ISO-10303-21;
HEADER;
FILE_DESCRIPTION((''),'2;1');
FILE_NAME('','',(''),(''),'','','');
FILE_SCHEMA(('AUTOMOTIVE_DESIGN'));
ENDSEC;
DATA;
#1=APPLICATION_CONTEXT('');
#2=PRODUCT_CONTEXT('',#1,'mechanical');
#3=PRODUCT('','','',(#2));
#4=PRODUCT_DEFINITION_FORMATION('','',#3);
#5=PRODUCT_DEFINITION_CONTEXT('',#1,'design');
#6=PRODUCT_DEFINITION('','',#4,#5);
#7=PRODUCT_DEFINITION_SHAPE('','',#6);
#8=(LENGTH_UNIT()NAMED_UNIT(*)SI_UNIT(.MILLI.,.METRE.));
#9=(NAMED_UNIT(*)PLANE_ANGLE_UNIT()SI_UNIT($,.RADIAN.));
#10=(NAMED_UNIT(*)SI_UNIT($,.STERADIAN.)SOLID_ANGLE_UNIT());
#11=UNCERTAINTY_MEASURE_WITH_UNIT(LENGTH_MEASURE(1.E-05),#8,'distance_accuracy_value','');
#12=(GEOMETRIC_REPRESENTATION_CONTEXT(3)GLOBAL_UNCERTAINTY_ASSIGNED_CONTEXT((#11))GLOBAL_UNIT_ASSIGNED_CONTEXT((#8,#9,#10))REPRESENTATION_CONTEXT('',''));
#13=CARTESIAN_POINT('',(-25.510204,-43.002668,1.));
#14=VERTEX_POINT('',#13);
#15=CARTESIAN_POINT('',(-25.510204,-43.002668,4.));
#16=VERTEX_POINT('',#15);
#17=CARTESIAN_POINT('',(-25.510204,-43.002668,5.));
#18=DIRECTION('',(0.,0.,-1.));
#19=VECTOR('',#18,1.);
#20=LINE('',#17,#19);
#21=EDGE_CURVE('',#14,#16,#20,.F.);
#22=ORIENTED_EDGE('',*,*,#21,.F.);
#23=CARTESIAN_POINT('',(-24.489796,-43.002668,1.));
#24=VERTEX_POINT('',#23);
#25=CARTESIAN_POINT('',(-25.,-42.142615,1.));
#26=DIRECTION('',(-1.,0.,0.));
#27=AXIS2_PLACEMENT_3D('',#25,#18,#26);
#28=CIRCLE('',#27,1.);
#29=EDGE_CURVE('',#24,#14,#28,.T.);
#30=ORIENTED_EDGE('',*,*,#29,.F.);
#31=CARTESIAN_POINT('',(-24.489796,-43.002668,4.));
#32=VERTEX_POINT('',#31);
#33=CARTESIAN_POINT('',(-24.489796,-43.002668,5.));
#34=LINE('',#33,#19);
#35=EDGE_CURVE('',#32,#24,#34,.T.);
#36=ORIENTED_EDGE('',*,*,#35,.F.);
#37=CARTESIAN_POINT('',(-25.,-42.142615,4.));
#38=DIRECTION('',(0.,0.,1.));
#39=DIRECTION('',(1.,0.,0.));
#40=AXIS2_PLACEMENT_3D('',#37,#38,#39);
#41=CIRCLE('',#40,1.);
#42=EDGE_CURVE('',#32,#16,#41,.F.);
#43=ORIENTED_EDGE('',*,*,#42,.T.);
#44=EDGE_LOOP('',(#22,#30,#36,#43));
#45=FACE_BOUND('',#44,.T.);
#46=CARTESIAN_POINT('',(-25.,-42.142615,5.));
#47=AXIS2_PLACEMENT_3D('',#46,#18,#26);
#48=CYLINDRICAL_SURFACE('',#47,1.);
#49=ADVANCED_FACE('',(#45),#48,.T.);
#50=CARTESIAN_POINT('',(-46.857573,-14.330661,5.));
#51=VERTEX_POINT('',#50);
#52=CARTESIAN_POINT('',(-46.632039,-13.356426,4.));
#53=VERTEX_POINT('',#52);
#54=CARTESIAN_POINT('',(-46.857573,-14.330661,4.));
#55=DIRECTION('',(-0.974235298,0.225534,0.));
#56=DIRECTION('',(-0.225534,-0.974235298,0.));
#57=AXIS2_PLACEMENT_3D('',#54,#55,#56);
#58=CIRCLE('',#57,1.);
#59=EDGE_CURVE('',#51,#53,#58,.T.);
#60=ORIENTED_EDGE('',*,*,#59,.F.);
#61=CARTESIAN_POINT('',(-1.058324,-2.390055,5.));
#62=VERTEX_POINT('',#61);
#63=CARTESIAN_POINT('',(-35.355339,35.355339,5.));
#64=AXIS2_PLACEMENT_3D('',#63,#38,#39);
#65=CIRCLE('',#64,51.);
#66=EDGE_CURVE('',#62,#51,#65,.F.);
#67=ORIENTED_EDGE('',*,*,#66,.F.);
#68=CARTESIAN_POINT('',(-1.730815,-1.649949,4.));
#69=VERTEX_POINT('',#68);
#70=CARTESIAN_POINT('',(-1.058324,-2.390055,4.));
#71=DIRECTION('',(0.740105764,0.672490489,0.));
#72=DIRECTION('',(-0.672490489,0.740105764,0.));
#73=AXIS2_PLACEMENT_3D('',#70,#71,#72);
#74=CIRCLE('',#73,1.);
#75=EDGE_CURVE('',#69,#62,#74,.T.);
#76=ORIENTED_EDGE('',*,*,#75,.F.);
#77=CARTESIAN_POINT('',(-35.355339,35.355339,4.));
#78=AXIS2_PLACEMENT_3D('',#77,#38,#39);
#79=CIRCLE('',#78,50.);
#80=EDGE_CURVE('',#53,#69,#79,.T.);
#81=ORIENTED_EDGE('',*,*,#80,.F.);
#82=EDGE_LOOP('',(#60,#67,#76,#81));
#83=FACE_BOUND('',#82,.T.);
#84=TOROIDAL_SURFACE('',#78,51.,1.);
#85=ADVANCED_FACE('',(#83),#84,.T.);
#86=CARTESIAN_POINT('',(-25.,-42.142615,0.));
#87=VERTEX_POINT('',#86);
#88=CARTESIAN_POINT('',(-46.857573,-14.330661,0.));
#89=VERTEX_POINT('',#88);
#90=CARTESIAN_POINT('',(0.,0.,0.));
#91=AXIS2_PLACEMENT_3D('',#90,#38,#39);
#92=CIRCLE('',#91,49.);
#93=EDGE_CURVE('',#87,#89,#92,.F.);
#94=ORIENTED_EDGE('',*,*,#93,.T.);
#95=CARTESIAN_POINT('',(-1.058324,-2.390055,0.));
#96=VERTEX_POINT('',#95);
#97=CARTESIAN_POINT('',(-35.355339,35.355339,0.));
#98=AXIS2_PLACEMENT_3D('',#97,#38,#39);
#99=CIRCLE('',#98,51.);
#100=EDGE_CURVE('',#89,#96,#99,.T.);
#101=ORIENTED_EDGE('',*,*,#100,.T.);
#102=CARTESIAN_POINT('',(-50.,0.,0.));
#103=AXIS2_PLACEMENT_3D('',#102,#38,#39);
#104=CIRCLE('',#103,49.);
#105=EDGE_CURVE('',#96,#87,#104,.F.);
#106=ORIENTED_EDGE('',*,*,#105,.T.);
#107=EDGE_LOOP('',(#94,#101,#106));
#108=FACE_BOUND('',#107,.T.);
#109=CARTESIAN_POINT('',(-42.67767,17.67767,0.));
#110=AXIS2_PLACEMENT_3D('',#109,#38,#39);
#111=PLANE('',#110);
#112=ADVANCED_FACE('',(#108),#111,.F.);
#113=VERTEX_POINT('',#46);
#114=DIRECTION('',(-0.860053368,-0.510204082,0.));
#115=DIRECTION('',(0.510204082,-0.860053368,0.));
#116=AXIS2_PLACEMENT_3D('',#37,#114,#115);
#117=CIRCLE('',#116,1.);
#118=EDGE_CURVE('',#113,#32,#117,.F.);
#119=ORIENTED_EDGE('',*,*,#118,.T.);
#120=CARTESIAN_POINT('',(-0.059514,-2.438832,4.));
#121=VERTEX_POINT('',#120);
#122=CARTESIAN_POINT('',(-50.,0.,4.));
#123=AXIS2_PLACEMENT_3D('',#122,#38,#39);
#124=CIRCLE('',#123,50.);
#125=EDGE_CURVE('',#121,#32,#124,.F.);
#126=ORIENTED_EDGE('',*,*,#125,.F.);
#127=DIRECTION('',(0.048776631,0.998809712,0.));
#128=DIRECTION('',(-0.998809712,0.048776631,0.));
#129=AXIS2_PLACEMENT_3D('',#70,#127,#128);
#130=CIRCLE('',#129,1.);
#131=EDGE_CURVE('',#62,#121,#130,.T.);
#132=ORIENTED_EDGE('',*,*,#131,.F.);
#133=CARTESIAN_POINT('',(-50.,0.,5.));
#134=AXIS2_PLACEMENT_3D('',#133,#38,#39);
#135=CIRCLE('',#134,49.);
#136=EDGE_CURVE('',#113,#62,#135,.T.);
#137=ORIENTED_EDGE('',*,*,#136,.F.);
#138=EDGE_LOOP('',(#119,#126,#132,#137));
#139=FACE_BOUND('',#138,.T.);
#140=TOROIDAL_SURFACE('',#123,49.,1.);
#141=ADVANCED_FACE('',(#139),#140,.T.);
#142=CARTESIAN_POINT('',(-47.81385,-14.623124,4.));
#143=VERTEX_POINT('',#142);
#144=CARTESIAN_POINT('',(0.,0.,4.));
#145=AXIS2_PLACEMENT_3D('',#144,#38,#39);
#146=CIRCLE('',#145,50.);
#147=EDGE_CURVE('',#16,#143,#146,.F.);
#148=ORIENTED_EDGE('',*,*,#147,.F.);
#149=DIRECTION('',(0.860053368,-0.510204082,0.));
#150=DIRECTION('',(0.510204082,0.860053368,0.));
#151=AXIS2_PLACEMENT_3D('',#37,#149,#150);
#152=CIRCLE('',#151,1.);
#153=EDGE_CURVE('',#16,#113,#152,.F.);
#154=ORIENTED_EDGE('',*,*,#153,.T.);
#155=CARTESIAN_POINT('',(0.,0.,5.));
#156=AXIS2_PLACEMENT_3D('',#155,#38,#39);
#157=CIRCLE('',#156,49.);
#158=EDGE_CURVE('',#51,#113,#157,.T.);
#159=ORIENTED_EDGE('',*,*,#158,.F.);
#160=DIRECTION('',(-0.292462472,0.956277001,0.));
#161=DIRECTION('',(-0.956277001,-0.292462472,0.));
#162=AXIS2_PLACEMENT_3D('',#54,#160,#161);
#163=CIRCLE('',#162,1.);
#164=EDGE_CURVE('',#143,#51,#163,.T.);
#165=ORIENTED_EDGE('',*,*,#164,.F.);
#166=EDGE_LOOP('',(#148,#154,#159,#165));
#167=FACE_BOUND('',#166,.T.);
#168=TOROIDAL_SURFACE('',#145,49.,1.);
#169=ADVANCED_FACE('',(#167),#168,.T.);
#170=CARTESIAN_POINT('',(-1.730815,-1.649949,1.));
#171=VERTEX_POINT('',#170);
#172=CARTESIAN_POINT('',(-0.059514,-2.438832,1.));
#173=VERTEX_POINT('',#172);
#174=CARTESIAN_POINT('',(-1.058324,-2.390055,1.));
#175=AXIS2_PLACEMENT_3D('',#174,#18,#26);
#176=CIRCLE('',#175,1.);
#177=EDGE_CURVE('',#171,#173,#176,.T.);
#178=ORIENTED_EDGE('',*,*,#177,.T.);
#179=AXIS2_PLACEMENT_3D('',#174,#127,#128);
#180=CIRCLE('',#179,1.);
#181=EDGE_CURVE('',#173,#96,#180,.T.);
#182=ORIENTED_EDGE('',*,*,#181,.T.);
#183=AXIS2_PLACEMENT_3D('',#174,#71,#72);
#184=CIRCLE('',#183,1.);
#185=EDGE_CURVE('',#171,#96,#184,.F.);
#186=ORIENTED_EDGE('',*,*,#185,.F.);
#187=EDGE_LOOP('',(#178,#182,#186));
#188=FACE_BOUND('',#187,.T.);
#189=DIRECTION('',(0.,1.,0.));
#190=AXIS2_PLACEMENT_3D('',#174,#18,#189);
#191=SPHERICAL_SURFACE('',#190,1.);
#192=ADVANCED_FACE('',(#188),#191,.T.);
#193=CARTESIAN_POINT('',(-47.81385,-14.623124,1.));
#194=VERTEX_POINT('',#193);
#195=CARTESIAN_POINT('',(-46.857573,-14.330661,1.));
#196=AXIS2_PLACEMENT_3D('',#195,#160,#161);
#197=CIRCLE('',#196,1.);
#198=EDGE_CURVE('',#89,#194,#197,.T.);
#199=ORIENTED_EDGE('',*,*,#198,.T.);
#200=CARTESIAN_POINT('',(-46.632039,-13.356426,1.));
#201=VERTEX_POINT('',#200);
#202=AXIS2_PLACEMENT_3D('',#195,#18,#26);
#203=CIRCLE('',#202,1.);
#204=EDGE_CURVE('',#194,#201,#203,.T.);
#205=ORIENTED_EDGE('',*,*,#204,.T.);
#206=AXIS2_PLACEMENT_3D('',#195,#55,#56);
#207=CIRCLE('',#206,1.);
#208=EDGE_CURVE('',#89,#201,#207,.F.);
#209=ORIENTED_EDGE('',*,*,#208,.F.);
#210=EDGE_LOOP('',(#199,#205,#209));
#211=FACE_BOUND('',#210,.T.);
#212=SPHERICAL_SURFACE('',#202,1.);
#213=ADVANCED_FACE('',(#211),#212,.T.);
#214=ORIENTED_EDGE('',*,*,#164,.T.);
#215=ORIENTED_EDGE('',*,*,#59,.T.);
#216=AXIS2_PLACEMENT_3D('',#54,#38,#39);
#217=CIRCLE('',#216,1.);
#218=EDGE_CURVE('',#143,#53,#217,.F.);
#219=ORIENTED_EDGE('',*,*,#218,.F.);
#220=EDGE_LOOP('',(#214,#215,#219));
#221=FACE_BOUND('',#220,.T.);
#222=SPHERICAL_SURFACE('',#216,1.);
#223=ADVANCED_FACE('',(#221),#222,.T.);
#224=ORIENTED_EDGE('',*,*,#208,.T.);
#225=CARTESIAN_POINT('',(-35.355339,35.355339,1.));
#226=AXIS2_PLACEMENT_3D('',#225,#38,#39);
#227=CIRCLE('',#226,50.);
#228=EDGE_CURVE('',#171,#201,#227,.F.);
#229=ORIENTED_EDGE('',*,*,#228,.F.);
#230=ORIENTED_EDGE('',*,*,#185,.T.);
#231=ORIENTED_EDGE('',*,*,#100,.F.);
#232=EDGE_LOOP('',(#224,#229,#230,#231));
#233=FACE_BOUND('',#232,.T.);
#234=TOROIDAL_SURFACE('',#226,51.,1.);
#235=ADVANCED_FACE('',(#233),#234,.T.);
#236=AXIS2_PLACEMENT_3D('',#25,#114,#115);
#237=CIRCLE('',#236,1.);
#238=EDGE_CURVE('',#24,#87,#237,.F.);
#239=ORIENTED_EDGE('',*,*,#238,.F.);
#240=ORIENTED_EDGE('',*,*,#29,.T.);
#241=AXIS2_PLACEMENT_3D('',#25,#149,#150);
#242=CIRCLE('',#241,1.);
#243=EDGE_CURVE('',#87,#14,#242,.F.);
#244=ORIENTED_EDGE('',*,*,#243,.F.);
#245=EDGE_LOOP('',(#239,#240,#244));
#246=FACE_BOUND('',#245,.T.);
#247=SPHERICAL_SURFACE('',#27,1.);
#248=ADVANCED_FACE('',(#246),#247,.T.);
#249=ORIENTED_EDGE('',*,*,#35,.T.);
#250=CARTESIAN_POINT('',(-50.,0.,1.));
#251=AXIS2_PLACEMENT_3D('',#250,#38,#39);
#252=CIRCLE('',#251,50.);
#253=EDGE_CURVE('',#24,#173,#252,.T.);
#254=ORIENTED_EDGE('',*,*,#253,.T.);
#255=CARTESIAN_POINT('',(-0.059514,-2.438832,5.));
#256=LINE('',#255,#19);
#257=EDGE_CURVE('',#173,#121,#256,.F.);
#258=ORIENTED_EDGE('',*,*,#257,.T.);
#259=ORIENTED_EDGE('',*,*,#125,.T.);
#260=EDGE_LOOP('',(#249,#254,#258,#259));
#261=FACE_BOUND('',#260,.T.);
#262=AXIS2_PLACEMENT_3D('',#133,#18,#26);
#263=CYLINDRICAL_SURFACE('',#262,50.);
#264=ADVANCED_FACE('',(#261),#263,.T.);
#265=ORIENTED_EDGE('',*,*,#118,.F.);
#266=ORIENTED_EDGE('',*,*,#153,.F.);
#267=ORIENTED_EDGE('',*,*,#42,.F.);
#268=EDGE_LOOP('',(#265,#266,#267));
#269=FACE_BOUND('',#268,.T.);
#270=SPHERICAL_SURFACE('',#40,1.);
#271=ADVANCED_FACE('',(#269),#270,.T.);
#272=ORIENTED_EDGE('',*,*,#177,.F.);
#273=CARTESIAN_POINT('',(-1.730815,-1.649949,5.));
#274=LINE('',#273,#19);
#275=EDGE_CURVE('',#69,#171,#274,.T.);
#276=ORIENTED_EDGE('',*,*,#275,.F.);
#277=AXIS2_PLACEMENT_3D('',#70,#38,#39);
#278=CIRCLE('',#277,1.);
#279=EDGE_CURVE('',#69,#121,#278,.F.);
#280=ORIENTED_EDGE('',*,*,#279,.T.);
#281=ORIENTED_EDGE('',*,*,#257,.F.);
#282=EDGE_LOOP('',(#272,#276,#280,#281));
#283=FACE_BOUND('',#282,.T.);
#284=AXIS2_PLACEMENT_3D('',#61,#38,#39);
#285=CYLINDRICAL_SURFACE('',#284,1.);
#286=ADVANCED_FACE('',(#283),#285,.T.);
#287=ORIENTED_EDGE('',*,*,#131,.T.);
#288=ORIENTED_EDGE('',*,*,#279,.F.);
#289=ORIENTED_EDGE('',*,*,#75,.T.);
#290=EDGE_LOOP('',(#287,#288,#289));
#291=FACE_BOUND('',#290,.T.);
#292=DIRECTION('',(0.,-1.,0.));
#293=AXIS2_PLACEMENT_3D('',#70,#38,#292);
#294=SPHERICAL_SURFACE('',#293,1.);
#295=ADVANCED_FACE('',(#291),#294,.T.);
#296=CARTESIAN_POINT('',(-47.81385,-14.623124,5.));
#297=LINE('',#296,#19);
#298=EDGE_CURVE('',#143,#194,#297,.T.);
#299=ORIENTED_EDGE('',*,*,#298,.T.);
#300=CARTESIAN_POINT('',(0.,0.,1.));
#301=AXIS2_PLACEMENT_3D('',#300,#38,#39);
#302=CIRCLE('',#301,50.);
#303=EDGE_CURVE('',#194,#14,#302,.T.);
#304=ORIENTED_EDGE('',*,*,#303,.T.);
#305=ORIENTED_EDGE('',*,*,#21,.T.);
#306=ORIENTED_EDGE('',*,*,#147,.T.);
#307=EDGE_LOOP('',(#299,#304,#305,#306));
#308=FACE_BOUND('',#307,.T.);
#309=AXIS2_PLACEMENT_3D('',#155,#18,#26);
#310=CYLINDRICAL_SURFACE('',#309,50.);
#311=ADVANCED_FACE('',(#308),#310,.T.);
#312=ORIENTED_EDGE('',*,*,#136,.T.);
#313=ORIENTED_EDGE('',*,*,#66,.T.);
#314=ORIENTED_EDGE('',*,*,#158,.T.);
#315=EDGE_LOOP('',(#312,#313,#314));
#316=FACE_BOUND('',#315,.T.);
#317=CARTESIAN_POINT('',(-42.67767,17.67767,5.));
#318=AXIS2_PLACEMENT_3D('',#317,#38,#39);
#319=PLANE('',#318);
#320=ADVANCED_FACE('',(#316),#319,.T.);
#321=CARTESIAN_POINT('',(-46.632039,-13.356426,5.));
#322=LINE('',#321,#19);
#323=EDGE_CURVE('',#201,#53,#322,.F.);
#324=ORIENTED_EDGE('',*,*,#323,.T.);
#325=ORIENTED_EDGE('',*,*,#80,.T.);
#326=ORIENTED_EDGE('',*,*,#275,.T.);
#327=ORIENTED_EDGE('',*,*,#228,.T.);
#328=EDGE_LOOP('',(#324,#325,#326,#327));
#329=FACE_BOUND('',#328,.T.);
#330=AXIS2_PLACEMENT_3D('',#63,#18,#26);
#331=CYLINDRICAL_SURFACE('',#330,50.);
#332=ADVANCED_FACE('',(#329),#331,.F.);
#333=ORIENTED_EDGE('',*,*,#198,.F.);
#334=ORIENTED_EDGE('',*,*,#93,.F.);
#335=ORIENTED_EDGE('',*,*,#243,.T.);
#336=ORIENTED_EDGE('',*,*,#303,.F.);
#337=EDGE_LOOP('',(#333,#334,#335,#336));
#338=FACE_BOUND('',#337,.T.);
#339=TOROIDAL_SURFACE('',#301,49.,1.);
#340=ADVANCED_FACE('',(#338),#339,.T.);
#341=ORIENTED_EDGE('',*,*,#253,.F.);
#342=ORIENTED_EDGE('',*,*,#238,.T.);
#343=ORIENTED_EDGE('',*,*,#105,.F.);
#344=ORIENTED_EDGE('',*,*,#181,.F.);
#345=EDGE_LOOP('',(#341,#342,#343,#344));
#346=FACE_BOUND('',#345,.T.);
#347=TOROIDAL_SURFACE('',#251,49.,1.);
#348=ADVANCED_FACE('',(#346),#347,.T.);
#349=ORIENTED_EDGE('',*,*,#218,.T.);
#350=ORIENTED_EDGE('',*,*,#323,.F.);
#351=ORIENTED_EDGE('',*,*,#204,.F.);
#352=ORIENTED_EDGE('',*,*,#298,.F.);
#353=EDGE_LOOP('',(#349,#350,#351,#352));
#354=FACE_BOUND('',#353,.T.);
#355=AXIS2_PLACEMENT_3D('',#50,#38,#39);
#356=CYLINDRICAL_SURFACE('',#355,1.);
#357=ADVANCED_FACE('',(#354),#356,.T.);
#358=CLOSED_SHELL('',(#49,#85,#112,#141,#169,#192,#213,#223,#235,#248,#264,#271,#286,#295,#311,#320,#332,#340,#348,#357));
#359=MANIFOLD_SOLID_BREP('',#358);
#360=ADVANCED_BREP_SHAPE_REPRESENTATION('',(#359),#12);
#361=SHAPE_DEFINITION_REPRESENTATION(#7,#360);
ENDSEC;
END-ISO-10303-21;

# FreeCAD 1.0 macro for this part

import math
import FreeCAD as App
import Part
import Sketcher
from FreeCAD import Vector
Q = App.Units.Quantity

doc = App.newDocument("Part")
body = doc.addObject("PartDesign::Body", "Body")

# Sketch on XY plane
sketch1 = body.newObject("Sketcher::SketchObject", "Sketch")
sketch1.AttachmentSupport = (doc.getObject("XY_Plane"), [""])
sketch1.MapMode = "FlatFace"
sketch1.addGeometry([
    Part.ArcOfCircle(Part.Circle(Vector(0, 0, 0), Vector(0, 0, 1), 50), math.radians(-165), math.radians(-120)),
    Part.ArcOfCircle(Part.Circle(Vector(-50, 0, 0), Vector(0, 0, 1), 50), math.radians(-60), math.radians(0)),
    Part.ArcOfCircle(Part.Circle(Vector(-35, 35, 0), Vector(0, 0, 1), 50), math.radians(-105), math.radians(-45)),
], False)
sketch1.addConstraint([
    Sketcher.Constraint("Coincident", 0, 2, 1, 1),
    Sketcher.Constraint("Coincident", 1, 2, 2, 2),
    Sketcher.Constraint("Coincident", 2, 1, 0, 1),
    Sketcher.Constraint("Coincident", 0, 3, -1, 1),
    Sketcher.Constraint("Coincident", 1, 2, -1, 1),
    Sketcher.Constraint("Equal", 0, 1),
    Sketcher.Constraint("Equal", 1, 2),
    Sketcher.Constraint("PointOnObject", 1, 3, -1),
    Sketcher.Constraint("Radius", 0, Q("50 mm")),
    Sketcher.Constraint("DistanceX", 2, 3, -1, 1, Q("35.355339 mm")),
])
pad1 = body.newObject("PartDesign::Pad", "Pad")
pad1.Profile = sketch1
pad1.Length = 5
doc.recompute()

fillet = body.newObject("PartDesign::Fillet", "Fillet")
fillet.Base = (pad1, ["Edge1"])
fillet.UseAllEdges = True
fillet.Radius = 1

doc.recompute()
